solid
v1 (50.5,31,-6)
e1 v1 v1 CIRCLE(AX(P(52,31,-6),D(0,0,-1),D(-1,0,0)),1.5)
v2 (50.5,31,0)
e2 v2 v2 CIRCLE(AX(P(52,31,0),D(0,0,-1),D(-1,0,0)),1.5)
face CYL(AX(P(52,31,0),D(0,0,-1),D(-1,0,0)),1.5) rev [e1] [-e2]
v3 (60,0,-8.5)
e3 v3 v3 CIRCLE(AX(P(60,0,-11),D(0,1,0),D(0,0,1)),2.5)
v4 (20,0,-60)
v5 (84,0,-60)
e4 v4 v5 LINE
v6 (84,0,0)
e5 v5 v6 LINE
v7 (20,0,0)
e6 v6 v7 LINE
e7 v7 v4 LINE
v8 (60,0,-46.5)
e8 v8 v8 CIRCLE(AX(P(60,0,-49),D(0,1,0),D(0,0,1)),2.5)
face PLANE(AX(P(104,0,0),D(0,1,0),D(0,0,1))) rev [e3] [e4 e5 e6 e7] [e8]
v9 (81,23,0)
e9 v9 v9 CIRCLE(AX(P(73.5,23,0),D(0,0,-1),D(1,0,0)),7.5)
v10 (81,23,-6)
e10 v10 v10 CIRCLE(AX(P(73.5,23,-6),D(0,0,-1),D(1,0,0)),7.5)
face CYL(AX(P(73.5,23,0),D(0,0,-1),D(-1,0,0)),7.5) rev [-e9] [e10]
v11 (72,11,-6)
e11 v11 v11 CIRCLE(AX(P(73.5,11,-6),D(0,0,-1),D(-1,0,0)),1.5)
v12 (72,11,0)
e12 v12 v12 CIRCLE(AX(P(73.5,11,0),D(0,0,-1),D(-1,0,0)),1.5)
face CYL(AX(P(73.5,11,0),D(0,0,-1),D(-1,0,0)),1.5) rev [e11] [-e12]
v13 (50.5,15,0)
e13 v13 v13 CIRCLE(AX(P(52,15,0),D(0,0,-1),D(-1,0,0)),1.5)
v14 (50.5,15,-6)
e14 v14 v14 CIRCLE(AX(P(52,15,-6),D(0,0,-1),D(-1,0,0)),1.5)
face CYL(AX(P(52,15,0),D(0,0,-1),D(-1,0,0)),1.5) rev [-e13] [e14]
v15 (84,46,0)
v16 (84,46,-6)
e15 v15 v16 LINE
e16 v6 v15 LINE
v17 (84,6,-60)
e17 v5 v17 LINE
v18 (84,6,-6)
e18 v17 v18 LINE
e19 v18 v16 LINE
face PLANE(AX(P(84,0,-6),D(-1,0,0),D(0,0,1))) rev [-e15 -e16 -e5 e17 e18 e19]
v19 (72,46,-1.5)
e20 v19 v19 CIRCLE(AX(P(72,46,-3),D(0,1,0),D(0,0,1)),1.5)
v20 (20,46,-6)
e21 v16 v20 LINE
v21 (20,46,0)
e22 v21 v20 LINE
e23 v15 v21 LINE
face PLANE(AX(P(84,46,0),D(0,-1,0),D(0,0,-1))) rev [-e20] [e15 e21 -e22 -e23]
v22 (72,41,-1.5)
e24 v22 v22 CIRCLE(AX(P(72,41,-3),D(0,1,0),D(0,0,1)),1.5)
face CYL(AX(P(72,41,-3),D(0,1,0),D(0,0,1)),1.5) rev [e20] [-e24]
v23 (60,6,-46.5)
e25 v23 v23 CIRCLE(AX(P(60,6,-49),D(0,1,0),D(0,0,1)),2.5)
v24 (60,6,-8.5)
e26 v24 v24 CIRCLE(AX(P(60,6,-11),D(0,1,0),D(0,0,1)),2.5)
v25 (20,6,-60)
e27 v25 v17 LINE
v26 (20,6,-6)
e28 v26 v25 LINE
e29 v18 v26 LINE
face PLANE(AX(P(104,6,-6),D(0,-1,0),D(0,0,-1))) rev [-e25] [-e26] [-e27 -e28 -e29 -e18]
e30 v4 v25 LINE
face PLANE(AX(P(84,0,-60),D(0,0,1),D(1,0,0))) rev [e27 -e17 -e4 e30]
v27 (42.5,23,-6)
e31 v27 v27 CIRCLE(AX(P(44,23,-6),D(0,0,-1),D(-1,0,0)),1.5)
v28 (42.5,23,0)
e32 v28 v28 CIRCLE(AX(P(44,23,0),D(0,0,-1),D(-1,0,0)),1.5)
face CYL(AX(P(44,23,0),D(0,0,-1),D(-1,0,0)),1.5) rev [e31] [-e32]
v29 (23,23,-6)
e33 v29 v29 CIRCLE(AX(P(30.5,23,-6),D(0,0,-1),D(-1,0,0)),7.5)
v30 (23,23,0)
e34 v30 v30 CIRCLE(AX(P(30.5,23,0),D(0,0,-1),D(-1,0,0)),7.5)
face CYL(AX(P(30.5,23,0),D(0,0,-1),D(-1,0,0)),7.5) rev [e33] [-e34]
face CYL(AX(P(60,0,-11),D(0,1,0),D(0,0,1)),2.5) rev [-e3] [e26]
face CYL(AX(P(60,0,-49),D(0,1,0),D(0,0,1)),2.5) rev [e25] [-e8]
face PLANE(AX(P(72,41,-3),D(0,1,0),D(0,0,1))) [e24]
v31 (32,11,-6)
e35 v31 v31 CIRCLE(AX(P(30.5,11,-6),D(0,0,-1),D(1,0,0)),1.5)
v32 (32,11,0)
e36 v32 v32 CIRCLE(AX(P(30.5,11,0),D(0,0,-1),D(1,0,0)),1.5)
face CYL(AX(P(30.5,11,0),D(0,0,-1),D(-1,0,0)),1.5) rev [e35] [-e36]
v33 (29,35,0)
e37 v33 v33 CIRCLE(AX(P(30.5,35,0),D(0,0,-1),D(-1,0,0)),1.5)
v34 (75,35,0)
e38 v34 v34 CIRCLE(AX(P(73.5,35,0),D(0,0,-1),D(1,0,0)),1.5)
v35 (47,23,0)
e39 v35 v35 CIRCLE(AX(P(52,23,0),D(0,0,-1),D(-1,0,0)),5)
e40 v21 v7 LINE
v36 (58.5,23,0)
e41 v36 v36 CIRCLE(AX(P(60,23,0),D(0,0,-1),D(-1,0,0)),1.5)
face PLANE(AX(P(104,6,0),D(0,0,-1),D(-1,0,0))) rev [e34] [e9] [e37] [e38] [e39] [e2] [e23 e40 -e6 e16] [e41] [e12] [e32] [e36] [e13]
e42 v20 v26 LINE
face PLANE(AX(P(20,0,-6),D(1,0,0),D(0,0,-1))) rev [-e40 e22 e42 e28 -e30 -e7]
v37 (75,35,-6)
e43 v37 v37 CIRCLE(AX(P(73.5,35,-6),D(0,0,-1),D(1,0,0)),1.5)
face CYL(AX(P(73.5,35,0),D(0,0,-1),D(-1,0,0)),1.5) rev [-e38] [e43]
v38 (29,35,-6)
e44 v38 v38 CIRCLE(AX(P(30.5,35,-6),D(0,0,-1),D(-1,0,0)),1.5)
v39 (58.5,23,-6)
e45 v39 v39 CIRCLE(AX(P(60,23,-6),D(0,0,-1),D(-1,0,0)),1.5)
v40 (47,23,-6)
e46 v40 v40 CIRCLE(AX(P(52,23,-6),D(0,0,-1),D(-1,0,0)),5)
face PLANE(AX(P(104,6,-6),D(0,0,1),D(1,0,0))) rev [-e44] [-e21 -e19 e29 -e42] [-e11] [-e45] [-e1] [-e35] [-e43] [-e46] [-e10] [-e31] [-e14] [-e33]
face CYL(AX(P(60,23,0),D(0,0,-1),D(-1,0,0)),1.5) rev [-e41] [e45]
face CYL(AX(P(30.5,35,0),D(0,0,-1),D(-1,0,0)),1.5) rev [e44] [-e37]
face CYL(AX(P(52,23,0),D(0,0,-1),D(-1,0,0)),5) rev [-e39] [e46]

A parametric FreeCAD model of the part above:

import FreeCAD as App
import Part
import Sketcher
from FreeCAD import Vector


def add_polygon(sketch, points):
    """Adds a closed chain of lines whose ends are joined by coincident constraints."""
    first, n = sketch.GeometryCount, len(points)
    for a, b in zip(points, points[1:] + points[:1]):
        sketch.addGeometry(Part.LineSegment(App.Vector(*a, 0), App.Vector(*b, 0)), False)
    for i in range(n):
        sketch.addConstraint(Sketcher.Constraint("Coincident", first + i, 2, first + (i + 1) % n, 1))

doc = App.newDocument("Part")
body = doc.addObject("PartDesign::Body", "Body")

# Sketch on YZ plane
sketch1 = doc.addObject("Sketcher::SketchObject", "Sketch")
body.addObject(sketch1)
sketch1.AttachmentSupport = (doc.YZ_Plane, [""])
sketch1.MapMode = "FlatFace"
add_polygon(sketch1, [(0, 0), (0, -80), (6, -80), (6, -6), (80, -6), (80, 0)])  # lines 0-5
sketch1.addConstraint(Sketcher.Constraint("Vertical", 0))
sketch1.addConstraint(Sketcher.Constraint("Horizontal", 1))
sketch1.addConstraint(Sketcher.Constraint("Vertical", 2))
sketch1.addConstraint(Sketcher.Constraint("Horizontal", 3))
sketch1.addConstraint(Sketcher.Constraint("Vertical", 4))
sketch1.addConstraint(Sketcher.Constraint("Horizontal", 5))
sketch1.addConstraint(Sketcher.Constraint("Coincident", 5, 2, -1, 1))
sketch1.addConstraint(Sketcher.Constraint("Equal", 5, 0))
sketch1.addConstraint(Sketcher.Constraint("Equal", 3, 2))
sketch1.addConstraint(Sketcher.Constraint("DistanceX", 1, 1, 1, 2, 6.0))
sketch1.addConstraint(Sketcher.Constraint("DistanceX", 3, 1, 3, 2, 74.0))
pad1 = doc.addObject("PartDesign::Pad", "Pad")
body.addObject(pad1)
pad1.Profile = sketch1
pad1.Length = 104

# Sketch on XZ plane
sketch2 = doc.addObject("Sketcher::SketchObject", "Sketch001")
body.addObject(sketch2)
sketch2.AttachmentSupport = (doc.XZ_Plane, [""])
sketch2.MapMode = "FlatFace"
sketch2.AttachmentOffset = App.Placement(Vector(0, 0, -6), App.Rotation())
sketch2.addGeometry(Part.Circle(Vector(60, -11, 0), Vector(0, 0, 1), 2.5), False)  # 0
sketch2.addGeometry(Part.Circle(Vector(60, -49, 0), Vector(0, 0, 1), 2.5), False)  # 1
add_polygon(sketch2, [(20, -60), (84, -60), (84, -6), (104, -6), (104, -80), (0, -80), (0, -6), (20, -6)])  # lines 2-9
sketch2.addConstraint(Sketcher.Constraint("Horizontal", 2))
sketch2.addConstraint(Sketcher.Constraint("Vertical", 3))
sketch2.addConstraint(Sketcher.Constraint("Horizontal", 4))
sketch2.addConstraint(Sketcher.Constraint("Vertical", 5))
sketch2.addConstraint(Sketcher.Constraint("Horizontal", 6))
sketch2.addConstraint(Sketcher.Constraint("Vertical", 7))
sketch2.addConstraint(Sketcher.Constraint("Horizontal", 8))
sketch2.addConstraint(Sketcher.Constraint("Vertical", 9))
sketch2.addConstraint(Sketcher.Constraint("Equal", 0, 1))
sketch2.addConstraint(Sketcher.Constraint("PointOnObject", 6, 2, -2))
sketch2.addConstraint(Sketcher.Constraint("Horizontal", 4, 2, 7, 2))
sketch2.addConstraint(Sketcher.Constraint("Vertical", 0, 3, 1, 3))
sketch2.addConstraint(Sketcher.Constraint("Equal", 4, 8))
sketch2.addConstraint(Sketcher.Constraint("Diameter", 0, 5.0))
sketch2.addConstraint(Sketcher.Constraint("DistanceX", 2, 1, 2, 2, 64.0))
sketch2.addConstraint(Sketcher.Constraint("DistanceX", 4, 1, 4, 2, 20.0))
sketch2.addConstraint(Sketcher.Constraint("DistanceY", 3, 1, 3, 2, 54.0))
sketch2.addConstraint(Sketcher.Constraint("DistanceY", 5, 2, 5, 1, 74.0))
sketch2.addConstraint(Sketcher.Constraint("DistanceX", -1, 1, 0, 3, 60.0))
sketch2.addConstraint(Sketcher.Constraint("DistanceY", 0, 3, -1, 1, 11.0))
sketch2.addConstraint(Sketcher.Constraint("DistanceY", 1, 3, -1, 1, 49.0))
sketch2.addConstraint(Sketcher.Constraint("DistanceY", 2, 2, -1, 1, 60.0))
pocket1 = doc.addObject("PartDesign::Pocket", "Pocket")
body.addObject(pocket1)
pocket1.Profile = sketch2
pocket1.Type = "ThroughAll"
pocket1.Reversed = True

# Sketch on XY plane
sketch3 = doc.addObject("Sketcher::SketchObject", "Sketch002")
body.addObject(sketch3)
sketch3.AttachmentSupport = (doc.XY_Plane, [""])
sketch3.MapMode = "FlatFace"
sketch3.AttachmentOffset = App.Placement(Vector(0, 0, -6), App.Rotation())
sketch3.addGeometry(Part.Circle(Vector(52, 23, 0), Vector(0, 0, 1), 5), False)  # 0
sketch3.addGeometry(Part.Circle(Vector(52, 15, 0), Vector(0, 0, 1), 1.5), False)  # 1
sketch3.addGeometry(Part.Circle(Vector(60, 23, 0), Vector(0, 0, 1), 1.5), False)  # 2
sketch3.addGeometry(Part.Circle(Vector(52, 31, 0), Vector(0, 0, 1), 1.5), False)  # 3
sketch3.addGeometry(Part.Circle(Vector(44, 23, 0), Vector(0, 0, 1), 1.5), False)  # 4
sketch3.addGeometry(Part.Circle(Vector(30.5, 23, 0), Vector(0, 0, 1), 7.5), False)  # 5
sketch3.addGeometry(Part.Circle(Vector(30.5, 35, 0), Vector(0, 0, 1), 1.5), False)  # 6
sketch3.addGeometry(Part.Circle(Vector(30.5, 11, 0), Vector(0, 0, 1), 1.5), False)  # 7
sketch3.addGeometry(Part.Circle(Vector(73.5, 11, 0), Vector(0, 0, 1), 1.5), False)  # 8
sketch3.addGeometry(Part.Circle(Vector(73.5, 23, 0), Vector(0, 0, 1), 7.5), False)  # 9
sketch3.addGeometry(Part.Circle(Vector(73.5, 35, 0), Vector(0, 0, 1), 1.5), False)  # 10
add_polygon(sketch3, [(84, 0), (84, 46), (20, 46), (20, 0), (0, 0), (0, 80), (104, 80), (104, 0)])  # lines 11-18
sketch3.addConstraint(Sketcher.Constraint("Vertical", 11))
sketch3.addConstraint(Sketcher.Constraint("Horizontal", 12))
sketch3.addConstraint(Sketcher.Constraint("Vertical", 13))
sketch3.addConstraint(Sketcher.Constraint("Horizontal", 14))
sketch3.addConstraint(Sketcher.Constraint("Vertical", 15))
sketch3.addConstraint(Sketcher.Constraint("Horizontal", 16))
sketch3.addConstraint(Sketcher.Constraint("Vertical", 17))
sketch3.addConstraint(Sketcher.Constraint("Horizontal", 18))
sketch3.addConstraint(Sketcher.Constraint("Coincident", 14, 2, -1, 1))
sketch3.addConstraint(Sketcher.Constraint("Equal", 1, 2))
sketch3.addConstraint(Sketcher.Constraint("Equal", 2, 3))
sketch3.addConstraint(Sketcher.Constraint("Equal", 3, 4))
sketch3.addConstraint(Sketcher.Constraint("Equal", 4, 6))
sketch3.addConstraint(Sketcher.Constraint("Equal", 6, 7))
sketch3.addConstraint(Sketcher.Constraint("Equal", 7, 8))
sketch3.addConstraint(Sketcher.Constraint("Equal", 5, 9))
sketch3.addConstraint(Sketcher.Constraint("Equal", 8, 10))
sketch3.addConstraint(Sketcher.Constraint("PointOnObject", 17, 2, -1))
sketch3.addConstraint(Sketcher.Constraint("Horizontal", 0, 3, 2, 3))
sketch3.addConstraint(Sketcher.Constraint("Horizontal", 2, 3, 4, 3))
sketch3.addConstraint(Sketcher.Constraint("Horizontal", 4, 3, 5, 3))
sketch3.addConstraint(Sketcher.Constraint("Horizontal", 7, 3, 8, 3))
sketch3.addConstraint(Sketcher.Constraint("Horizontal", 5, 3, 9, 3))
sketch3.addConstraint(Sketcher.Constraint("Horizontal", 6, 3, 10, 3))
sketch3.addConstraint(Sketcher.Constraint("Vertical", 0, 3, 1, 3))
sketch3.addConstraint(Sketcher.Constraint("Vertical", 1, 3, 3, 3))
sketch3.addConstraint(Sketcher.Constraint("Vertical", 5, 3, 6, 3))
sketch3.addConstraint(Sketcher.Constraint("Vertical", 6, 3, 7, 3))
sketch3.addConstraint(Sketcher.Constraint("Vertical", 8, 3, 9, 3))
sketch3.addConstraint(Sketcher.Constraint("Vertical", 9, 3, 10, 3))
sketch3.addConstraint(Sketcher.Constraint("Equal", 14, 18))
sketch3.addConstraint(Sketcher.Constraint("Diameter", 0, 10.0))
sketch3.addConstraint(Sketcher.Constraint("Diameter", 1, 3.0))
sketch3.addConstraint(Sketcher.Constraint("Diameter", 5, 15.0))
sketch3.addConstraint(Sketcher.Constraint("DistanceX", 12, 2, 12, 1, 64.0))
sketch3.addConstraint(Sketcher.Constraint("DistanceX", 14, 2, 14, 1, 20.0))
sketch3.addConstraint(Sketcher.Constraint("DistanceY", 11, 1, 11, 2, 46.0))
sketch3.addConstraint(Sketcher.Constraint("DistanceY", 15, 1, 15, 2, 80.0))
sketch3.addConstraint(Sketcher.Constraint("DistanceX", -1, 1, 0, 3, 52.0))
sketch3.addConstraint(Sketcher.Constraint("DistanceY", -1, 1, 0, 3, 23.0))
sketch3.addConstraint(Sketcher.Constraint("DistanceY", -1, 1, 1, 3, 15.0))
sketch3.addConstraint(Sketcher.Constraint("DistanceX", -1, 1, 2, 3, 60.0))
sketch3.addConstraint(Sketcher.Constraint("DistanceY", -1, 1, 3, 3, 31.0))
sketch3.addConstraint(Sketcher.Constraint("DistanceX", -1, 1, 4, 3, 44.0))
sketch3.addConstraint(Sketcher.Constraint("DistanceY", -1, 1, 6, 3, 35.0))
sketch3.addConstraint(Sketcher.Constraint("DistanceY", -1, 1, 7, 3, 11.0))
sketch3.addConstraint(Sketcher.Constraint("DistanceX", -1, 1, 5, 3, 30.5))
sketch3.addConstraint(Sketcher.Constraint("DistanceX", -1, 1, 8, 3, 73.5))
pocket2 = doc.addObject("PartDesign::Pocket", "Pocket001")
body.addObject(pocket2)
pocket2.Profile = sketch3
pocket2.Type = "ThroughAll"
pocket2.Reversed = True

# Sketch on XZ plane
sketch4 = doc.addObject("Sketcher::SketchObject", "Sketch003")
body.addObject(sketch4)
sketch4.AttachmentSupport = (doc.XZ_Plane, [""])
sketch4.MapMode = "FlatFace"
sketch4.AttachmentOffset = App.Placement(Vector(0, 0, -46), App.Rotation())
sketch4.addGeometry(Part.Circle(Vector(72, -3, 0), Vector(0, 0, 1), 1.5), False)
sketch4.addConstraint(Sketcher.Constraint("Diameter", 0, 3.0))
sketch4.addConstraint(Sketcher.Constraint("DistanceX", -1, 1, 0, 3, 72.0))
sketch4.addConstraint(Sketcher.Constraint("DistanceY", 0, 3, -1, 1, 3.0))
pocket3 = doc.addObject("PartDesign::Pocket", "Pocket002")
body.addObject(pocket3)
pocket3.Profile = sketch4
pocket3.Length = 5
pocket3.Reversed = True

doc.recompute()
